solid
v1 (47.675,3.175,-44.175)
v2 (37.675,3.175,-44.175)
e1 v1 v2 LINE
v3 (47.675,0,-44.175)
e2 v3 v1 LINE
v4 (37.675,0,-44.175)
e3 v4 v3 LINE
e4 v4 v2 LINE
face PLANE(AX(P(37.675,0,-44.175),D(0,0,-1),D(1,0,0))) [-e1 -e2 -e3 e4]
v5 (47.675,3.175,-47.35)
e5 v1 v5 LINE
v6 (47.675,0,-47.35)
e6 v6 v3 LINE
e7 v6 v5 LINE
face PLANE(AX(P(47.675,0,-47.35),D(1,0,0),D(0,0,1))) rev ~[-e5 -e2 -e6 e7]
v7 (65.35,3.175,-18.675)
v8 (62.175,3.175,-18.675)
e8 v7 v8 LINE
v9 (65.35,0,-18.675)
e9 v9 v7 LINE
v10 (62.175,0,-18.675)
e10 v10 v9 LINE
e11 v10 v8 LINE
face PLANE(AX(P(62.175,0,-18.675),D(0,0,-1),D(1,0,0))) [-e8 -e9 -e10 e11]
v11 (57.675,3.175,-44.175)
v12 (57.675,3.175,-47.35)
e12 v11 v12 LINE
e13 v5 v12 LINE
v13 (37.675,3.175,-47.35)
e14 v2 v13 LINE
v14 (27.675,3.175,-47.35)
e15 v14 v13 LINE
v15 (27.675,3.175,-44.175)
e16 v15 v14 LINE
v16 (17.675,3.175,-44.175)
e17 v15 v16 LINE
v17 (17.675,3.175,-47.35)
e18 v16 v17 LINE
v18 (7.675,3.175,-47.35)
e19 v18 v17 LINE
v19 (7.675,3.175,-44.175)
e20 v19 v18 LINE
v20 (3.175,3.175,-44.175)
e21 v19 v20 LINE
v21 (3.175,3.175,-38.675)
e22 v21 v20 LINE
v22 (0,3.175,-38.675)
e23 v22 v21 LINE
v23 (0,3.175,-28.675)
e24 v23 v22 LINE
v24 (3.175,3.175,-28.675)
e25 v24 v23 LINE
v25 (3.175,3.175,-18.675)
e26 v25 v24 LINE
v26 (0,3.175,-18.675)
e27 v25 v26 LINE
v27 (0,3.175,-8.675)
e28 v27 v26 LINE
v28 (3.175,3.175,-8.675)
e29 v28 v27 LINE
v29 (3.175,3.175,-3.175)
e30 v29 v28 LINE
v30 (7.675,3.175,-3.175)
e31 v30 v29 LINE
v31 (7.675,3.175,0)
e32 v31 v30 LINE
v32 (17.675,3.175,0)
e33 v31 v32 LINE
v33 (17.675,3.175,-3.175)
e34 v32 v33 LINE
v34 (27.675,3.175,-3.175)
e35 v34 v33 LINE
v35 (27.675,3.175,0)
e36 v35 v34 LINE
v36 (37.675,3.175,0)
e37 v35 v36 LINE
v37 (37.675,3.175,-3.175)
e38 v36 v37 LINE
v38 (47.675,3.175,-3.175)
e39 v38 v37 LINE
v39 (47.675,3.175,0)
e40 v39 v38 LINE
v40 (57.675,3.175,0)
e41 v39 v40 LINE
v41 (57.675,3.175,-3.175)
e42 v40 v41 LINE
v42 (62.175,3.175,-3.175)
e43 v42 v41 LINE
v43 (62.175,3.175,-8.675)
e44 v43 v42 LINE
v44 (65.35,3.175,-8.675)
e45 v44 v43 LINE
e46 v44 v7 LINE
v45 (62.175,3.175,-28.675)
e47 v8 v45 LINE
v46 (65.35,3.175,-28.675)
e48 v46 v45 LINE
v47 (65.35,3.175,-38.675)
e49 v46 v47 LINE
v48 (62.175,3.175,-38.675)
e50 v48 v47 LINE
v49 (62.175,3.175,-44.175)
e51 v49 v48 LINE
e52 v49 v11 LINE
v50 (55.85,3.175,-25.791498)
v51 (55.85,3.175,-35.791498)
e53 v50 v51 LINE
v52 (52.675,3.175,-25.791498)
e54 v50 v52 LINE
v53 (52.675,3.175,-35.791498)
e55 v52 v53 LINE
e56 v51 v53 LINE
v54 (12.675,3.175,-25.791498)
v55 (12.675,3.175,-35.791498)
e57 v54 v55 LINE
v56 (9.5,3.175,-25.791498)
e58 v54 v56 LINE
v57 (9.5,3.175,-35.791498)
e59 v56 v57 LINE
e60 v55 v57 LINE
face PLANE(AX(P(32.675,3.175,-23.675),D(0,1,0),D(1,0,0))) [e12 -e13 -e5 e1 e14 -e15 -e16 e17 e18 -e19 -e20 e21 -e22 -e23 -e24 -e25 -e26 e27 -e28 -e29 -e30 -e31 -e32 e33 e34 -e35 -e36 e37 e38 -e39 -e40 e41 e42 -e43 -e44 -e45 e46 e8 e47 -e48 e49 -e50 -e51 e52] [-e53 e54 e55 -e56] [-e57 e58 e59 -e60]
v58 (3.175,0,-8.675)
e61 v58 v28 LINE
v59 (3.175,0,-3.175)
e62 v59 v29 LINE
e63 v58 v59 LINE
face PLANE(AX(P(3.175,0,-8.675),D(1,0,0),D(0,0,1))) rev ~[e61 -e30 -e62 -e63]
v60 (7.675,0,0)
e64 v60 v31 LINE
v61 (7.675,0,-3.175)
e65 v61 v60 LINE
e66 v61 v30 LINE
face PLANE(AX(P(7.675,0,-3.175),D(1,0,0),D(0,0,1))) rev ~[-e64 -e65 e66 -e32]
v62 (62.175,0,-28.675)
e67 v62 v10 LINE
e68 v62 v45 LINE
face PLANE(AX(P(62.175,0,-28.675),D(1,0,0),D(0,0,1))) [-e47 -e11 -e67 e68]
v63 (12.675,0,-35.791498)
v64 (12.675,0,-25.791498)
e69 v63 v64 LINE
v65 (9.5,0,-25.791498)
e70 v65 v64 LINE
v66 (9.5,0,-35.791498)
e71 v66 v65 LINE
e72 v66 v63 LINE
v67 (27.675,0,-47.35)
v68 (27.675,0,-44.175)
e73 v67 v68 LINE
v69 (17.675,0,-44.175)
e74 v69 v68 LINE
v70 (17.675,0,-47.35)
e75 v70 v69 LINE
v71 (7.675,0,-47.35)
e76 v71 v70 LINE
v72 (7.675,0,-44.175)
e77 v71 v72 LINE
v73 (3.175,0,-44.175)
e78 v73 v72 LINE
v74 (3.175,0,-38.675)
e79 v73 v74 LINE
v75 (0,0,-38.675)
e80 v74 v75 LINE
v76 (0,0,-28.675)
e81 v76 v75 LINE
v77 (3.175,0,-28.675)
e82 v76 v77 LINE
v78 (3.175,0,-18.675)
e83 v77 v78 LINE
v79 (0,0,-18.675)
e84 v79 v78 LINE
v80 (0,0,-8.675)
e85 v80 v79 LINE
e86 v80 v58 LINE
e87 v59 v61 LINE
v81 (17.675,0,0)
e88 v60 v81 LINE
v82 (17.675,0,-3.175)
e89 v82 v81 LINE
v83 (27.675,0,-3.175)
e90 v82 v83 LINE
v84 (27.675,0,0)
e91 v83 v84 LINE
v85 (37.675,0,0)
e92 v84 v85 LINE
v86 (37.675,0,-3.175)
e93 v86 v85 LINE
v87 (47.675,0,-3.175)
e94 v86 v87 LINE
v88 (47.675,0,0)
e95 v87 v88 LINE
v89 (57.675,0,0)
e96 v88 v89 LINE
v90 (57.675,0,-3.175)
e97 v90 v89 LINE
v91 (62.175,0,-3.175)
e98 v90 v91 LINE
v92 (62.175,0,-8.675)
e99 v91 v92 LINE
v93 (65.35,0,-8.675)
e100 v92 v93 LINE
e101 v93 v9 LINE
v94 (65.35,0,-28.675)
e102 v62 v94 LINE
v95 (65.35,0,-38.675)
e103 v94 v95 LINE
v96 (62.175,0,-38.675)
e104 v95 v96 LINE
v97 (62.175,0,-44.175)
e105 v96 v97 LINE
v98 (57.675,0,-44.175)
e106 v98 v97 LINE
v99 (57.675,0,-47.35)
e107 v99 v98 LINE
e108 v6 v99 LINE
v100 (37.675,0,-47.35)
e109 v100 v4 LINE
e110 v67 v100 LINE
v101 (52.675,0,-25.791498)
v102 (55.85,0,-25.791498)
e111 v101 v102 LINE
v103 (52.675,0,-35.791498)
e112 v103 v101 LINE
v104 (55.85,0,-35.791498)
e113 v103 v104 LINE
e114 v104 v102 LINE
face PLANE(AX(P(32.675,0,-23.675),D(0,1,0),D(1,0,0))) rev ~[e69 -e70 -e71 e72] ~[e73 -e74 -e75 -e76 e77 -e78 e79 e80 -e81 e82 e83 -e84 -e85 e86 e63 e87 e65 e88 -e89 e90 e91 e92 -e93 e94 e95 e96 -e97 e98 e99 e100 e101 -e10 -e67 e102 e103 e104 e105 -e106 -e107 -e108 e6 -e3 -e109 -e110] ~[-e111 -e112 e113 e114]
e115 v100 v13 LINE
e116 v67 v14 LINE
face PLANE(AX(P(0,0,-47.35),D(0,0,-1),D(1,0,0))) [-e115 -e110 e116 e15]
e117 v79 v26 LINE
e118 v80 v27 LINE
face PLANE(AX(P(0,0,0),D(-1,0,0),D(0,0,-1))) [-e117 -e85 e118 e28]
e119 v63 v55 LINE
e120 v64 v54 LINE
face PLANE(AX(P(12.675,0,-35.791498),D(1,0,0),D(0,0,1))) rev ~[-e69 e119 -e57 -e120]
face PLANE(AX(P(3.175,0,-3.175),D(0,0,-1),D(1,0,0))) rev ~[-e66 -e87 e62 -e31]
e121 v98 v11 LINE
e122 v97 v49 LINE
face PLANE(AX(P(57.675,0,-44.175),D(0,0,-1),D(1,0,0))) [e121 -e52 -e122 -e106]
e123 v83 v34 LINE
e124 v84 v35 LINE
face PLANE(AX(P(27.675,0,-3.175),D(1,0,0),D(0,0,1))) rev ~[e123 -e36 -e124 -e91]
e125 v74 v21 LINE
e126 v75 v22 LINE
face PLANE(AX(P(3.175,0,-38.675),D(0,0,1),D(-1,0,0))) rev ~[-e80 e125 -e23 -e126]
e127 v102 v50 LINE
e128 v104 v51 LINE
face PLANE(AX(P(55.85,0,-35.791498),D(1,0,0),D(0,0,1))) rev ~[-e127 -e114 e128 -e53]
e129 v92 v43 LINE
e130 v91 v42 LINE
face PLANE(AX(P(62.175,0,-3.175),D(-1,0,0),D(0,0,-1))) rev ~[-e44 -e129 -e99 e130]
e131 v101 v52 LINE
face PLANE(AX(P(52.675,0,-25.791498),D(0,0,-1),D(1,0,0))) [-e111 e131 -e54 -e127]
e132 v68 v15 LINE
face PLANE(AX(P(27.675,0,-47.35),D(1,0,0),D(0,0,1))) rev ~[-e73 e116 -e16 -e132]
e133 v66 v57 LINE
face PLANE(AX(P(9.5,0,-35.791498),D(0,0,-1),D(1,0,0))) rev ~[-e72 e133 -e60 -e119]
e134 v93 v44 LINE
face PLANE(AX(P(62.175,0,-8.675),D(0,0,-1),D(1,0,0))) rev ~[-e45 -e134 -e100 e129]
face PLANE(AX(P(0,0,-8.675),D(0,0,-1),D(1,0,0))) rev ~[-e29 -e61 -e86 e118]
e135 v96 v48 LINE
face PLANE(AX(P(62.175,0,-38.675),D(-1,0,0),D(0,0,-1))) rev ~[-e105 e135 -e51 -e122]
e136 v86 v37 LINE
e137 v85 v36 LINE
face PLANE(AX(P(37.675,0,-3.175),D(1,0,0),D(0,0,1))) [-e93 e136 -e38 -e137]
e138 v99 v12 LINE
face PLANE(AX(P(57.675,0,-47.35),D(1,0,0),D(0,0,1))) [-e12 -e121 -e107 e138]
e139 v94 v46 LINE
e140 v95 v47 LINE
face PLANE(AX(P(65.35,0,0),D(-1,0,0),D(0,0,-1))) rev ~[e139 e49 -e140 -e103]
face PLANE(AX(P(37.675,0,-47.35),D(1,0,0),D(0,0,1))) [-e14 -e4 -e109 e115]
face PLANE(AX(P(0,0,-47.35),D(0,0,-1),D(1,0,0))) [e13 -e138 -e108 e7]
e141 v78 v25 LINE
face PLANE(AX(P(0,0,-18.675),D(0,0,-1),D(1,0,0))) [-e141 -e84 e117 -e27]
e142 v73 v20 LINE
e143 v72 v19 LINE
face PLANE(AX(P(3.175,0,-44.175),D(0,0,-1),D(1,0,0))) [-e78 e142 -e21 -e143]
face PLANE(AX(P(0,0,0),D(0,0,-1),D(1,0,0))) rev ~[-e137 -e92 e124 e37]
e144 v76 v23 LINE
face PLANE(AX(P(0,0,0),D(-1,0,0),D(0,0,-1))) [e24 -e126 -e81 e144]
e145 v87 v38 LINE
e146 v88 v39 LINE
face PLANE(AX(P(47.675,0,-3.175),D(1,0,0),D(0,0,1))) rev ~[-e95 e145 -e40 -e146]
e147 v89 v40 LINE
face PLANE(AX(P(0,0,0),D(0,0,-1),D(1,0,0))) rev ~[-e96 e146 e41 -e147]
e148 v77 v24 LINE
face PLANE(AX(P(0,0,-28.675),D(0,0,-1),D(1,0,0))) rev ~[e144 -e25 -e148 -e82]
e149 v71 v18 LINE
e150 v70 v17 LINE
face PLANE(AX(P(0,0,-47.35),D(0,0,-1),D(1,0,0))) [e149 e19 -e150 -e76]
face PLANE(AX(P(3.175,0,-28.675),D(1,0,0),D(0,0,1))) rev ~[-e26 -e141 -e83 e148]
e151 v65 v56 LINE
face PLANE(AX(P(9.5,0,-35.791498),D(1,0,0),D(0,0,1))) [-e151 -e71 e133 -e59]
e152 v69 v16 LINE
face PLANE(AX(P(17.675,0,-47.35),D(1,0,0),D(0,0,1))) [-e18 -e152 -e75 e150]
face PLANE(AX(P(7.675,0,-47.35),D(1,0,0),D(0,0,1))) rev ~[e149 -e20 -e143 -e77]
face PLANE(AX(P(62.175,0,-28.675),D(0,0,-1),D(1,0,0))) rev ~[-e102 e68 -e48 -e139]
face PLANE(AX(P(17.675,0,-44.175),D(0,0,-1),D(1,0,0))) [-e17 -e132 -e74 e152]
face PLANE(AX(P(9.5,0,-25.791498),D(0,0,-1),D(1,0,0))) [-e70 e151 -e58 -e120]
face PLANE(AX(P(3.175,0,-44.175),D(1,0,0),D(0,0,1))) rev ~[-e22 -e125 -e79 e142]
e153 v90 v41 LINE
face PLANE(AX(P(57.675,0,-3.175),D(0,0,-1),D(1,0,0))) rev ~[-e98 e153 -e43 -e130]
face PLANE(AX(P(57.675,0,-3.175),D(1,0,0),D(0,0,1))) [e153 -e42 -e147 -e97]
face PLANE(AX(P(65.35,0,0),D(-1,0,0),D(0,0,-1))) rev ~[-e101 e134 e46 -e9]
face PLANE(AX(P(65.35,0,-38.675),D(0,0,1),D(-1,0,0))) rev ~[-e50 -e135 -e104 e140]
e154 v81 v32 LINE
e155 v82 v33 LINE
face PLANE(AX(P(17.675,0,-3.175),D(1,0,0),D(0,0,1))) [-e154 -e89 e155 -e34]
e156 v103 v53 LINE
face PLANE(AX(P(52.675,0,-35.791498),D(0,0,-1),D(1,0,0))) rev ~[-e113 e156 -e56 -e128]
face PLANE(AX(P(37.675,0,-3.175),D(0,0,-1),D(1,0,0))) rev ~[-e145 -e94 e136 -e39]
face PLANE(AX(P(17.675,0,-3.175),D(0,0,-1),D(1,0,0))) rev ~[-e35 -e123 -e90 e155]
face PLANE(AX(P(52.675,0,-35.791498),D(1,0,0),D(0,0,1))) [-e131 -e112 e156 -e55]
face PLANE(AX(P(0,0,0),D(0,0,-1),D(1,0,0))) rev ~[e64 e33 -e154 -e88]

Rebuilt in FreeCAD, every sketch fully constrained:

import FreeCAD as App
import Part
import Sketcher

V = App.Vector


def add_polygon(sketch, points):
    """Adds a closed chain of lines whose ends are joined by coincident constraints."""
    first, n = sketch.GeometryCount, len(points)
    for a, b in zip(points, points[1:] + points[:1]):
        sketch.addGeometry(Part.LineSegment(App.Vector(*a, 0), App.Vector(*b, 0)), False)
    for i in range(n):
        sketch.addConstraint(Sketcher.Constraint("Coincident", first + i, 2, first + (i + 1) % n, 1))

doc = App.newDocument("Part")
body = doc.addObject("PartDesign::Body", "Body")

# Sketch on XZ plane
sketch1 = body.newObject("Sketcher::SketchObject", "Sketch")
sketch1.AttachmentSupport = (doc.getObject("XZ_Plane"), [""])
sketch1.MapMode = "FlatFace"
add_polygon(sketch1, [(0, -47), (0, 0), (65, 0), (65, -47)])  # lines 0-3
sketch1.addConstraint([
    Sketcher.Constraint("Vertical", 0),
    Sketcher.Constraint("Horizontal", 1),
    Sketcher.Constraint("Vertical", 2),
    Sketcher.Constraint("Horizontal", 3),
    Sketcher.Constraint("Coincident", 0, 2, -1, 1),
    Sketcher.Constraint("DistanceX", 1, 1, 1, 2, 65.35),
    Sketcher.Constraint("DistanceY", 0, 1, 0, 2, 47.35),
])
pad1 = body.newObject("PartDesign::Pad", "Pad")
pad1.Profile = sketch1
pad1.Length = 3.175
pad1.Reversed = True

# Sketch on XZ plane
sketch2 = body.newObject("Sketcher::SketchObject", "Sketch001")
sketch2.AttachmentSupport = (doc.getObject("XZ_Plane"), [""])
sketch2.MapMode = "FlatFace"
add_polygon(sketch2, [(57.7, -44.2), (57.7, -47.4), (65.3, -47.4), (65.3, -38.7), (62.2, -38.7), (62.2, -44.2)])  # lines 0-5
add_polygon(sketch2, [(62.2, -18.7), (62.2, -28.7), (65.3, -28.7), (65.3, -18.7)])  # lines 6-9
add_polygon(sketch2, [(62.2, -8.7), (65.3, -8.7), (65.3, 0), (57.7, 0), (57.7, -3.2), (62.2, -3.2)])  # lines 10-15
add_polygon(sketch2, [(37.7, 0), (37.7, -3.2), (47.7, -3.2), (47.7, 0)])  # lines 16-19
add_polygon(sketch2, [(37.7, -44.2), (37.7, -47.4), (47.7, -47.4), (47.7, -44.2)])  # lines 20-23
add_polygon(sketch2, [(17.7, -44.2), (17.7, -47.4), (27.7, -47.4), (27.7, -44.2)])  # lines 24-27
add_polygon(sketch2, [(7.7, -47.4), (7.7, -44.2), (3.2, -44.2), (3.2, -38.7), (0, -38.7), (0, -47.4)])  # lines 28-33
add_polygon(sketch2, [(0, -18.7), (0, -28.7), (3.2, -28.7), (3.2, -18.7)])  # lines 34-37
add_polygon(sketch2, [(0, 0), (0, -8.7), (3.2, -8.7), (3.2, -3.2), (7.7, -3.2), (7.7, 0)])  # lines 38-43
add_polygon(sketch2, [(17.7, 0), (17.7, -3.2), (27.7, -3.2), (27.7, 0)])  # lines 44-47
sketch2.addConstraint([
    Sketcher.Constraint("Vertical", 0),
    Sketcher.Constraint("Horizontal", 1),
    Sketcher.Constraint("Vertical", 2),
    Sketcher.Constraint("Horizontal", 3),
    Sketcher.Constraint("Vertical", 4),
    Sketcher.Constraint("Horizontal", 5),
    Sketcher.Constraint("Vertical", 6),
    Sketcher.Constraint("Horizontal", 7),
    Sketcher.Constraint("Vertical", 8),
    Sketcher.Constraint("Horizontal", 9),
    Sketcher.Constraint("Horizontal", 10),
    Sketcher.Constraint("Vertical", 11),
    Sketcher.Constraint("Horizontal", 12),
    Sketcher.Constraint("Vertical", 13),
    Sketcher.Constraint("Horizontal", 14),
    Sketcher.Constraint("Vertical", 15),
    Sketcher.Constraint("Vertical", 16),
    Sketcher.Constraint("Horizontal", 17),
    Sketcher.Constraint("Vertical", 18),
    Sketcher.Constraint("Horizontal", 19),
    Sketcher.Constraint("Vertical", 20),
    Sketcher.Constraint("Horizontal", 21),
    Sketcher.Constraint("Vertical", 22),
    Sketcher.Constraint("Horizontal", 23),
    Sketcher.Constraint("Vertical", 24),
    Sketcher.Constraint("Horizontal", 25),
    Sketcher.Constraint("Vertical", 26),
    Sketcher.Constraint("Horizontal", 27),
    Sketcher.Constraint("Vertical", 28),
    Sketcher.Constraint("Horizontal", 29),
    Sketcher.Constraint("Vertical", 30),
    Sketcher.Constraint("Horizontal", 31),
    Sketcher.Constraint("Vertical", 32),
    Sketcher.Constraint("Horizontal", 33),
    Sketcher.Constraint("Vertical", 34),
    Sketcher.Constraint("Horizontal", 35),
    Sketcher.Constraint("Vertical", 36),
    Sketcher.Constraint("Horizontal", 37),
    Sketcher.Constraint("Vertical", 38),
    Sketcher.Constraint("Horizontal", 39),
    Sketcher.Constraint("Vertical", 40),
    Sketcher.Constraint("Horizontal", 41),
    Sketcher.Constraint("Vertical", 42),
    Sketcher.Constraint("Horizontal", 43),
    Sketcher.Constraint("Vertical", 44),
    Sketcher.Constraint("Horizontal", 45),
    Sketcher.Constraint("Vertical", 46),
    Sketcher.Constraint("Horizontal", 47),
    Sketcher.Constraint("Coincident", 43, 2, -1, 1),
    Sketcher.Constraint("PointOnObject", 11, 2, -1),
    Sketcher.Constraint("PointOnObject", 18, 2, -1),
    Sketcher.Constraint("PointOnObject", 31, 2, -2),
    Sketcher.Constraint("PointOnObject", 34, 2, -2),
    Sketcher.Constraint("PointOnObject", 46, 2, -1),
    Sketcher.Constraint("Horizontal", 14, 2, 16, 2),
    Sketcher.Constraint("Horizontal", 1, 2, 20, 2),
    Sketcher.Constraint("Horizontal", 5, 2, 22, 2),
    Sketcher.Constraint("Horizontal", 21, 2, 24, 2),
    Sketcher.Constraint("Horizontal", 23, 2, 26, 2),
    Sketcher.Constraint("Horizontal", 27, 2, 28, 2),
    Sketcher.Constraint("Horizontal", 3, 2, 30, 2),
    Sketcher.Constraint("Horizontal", 25, 2, 32, 2),
    Sketcher.Constraint("Horizontal", 7, 2, 34, 2),
    Sketcher.Constraint("Horizontal", 9, 2, 36, 2),
    Sketcher.Constraint("Horizontal", 15, 2, 38, 2),
    Sketcher.Constraint("Horizontal", 17, 2, 40, 2),
    Sketcher.Constraint("Horizontal", 41, 2, 44, 2),
    Sketcher.Constraint("Vertical", 4, 2, 6, 2),
    Sketcher.Constraint("Vertical", 2, 2, 7, 2),
    Sketcher.Constraint("Vertical", 8, 2, 10, 2),
    Sketcher.Constraint("Vertical", 5, 2, 12, 2),
    Sketcher.Constraint("Vertical", 9, 2, 14, 2),
    Sketcher.Constraint("Vertical", 19, 2, 20, 2),
    Sketcher.Constraint("Vertical", 18, 2, 21, 2),
    Sketcher.Constraint("Vertical", 30, 2, 35, 2),
    Sketcher.Constraint("Vertical", 36, 2, 39, 2),
    Sketcher.Constraint("Vertical", 33, 2, 41, 2),
    Sketcher.Constraint("Vertical", 27, 2, 44, 2),
    Sketcher.Constraint("Vertical", 26, 2, 45, 2),
    Sketcher.Constraint("Equal", 23, 25),
    Sketcher.Constraint("Equal", 14, 29),
    Sketcher.Constraint("Equal", 10, 31),
    Sketcher.Constraint("Equal", 39, 0),
    Sketcher.Constraint("Equal", 47, 6),
    Sketcher.Constraint("Equal", 2, 11),
    Sketcher.Constraint("Equal", 0, 13),
    Sketcher.Constraint("DistanceX", 17, 1, 17, 2, 10.0),
    Sketcher.Constraint("DistanceX", 5, 2, 5, 1, 4.5),
    Sketcher.Constraint("DistanceY", 4, 2, 4, 1, 5.5),
    Sketcher.Constraint("DistanceY", 3, 2, 6, 2, 10.0),
    Sketcher.Constraint("DistanceY", 8, 2, 10, 2, 10.0),
    Sketcher.Constraint("DistanceX", 16, 2, 13, 2, 20.0),
    Sketcher.Constraint("DistanceX", 24, 2, 20, 2, 20.0),
    Sketcher.Constraint("DistanceX", 28, 2, 27, 2, 10.0),
    Sketcher.Constraint("DistanceX", 1, 1, 1, 2, 7.675),
])
pocket1 = body.newObject("PartDesign::Pocket", "Pocket")
pocket1.Profile = sketch2
pocket1.Type = "ThroughAll"

# Sketch on XZ plane
sketch3 = body.newObject("Sketcher::SketchObject", "Sketch002")
sketch3.AttachmentSupport = (doc.getObject("XZ_Plane"), [""])
sketch3.MapMode = "FlatFace"
add_polygon(sketch3, [(52.7, -25.8), (52.7, -35.8), (55.9, -35.8), (55.9, -25.8)])  # lines 0-3
add_polygon(sketch3, [(9.5, -25.8), (9.5, -35.8), (12.7, -35.8), (12.7, -25.8)])  # lines 4-7
sketch3.addConstraint([
    Sketcher.Constraint("Vertical", 0),
    Sketcher.Constraint("Horizontal", 1),
    Sketcher.Constraint("Vertical", 2),
    Sketcher.Constraint("Horizontal", 3),
    Sketcher.Constraint("Vertical", 4),
    Sketcher.Constraint("Horizontal", 5),
    Sketcher.Constraint("Vertical", 6),
    Sketcher.Constraint("Horizontal", 7),
    Sketcher.Constraint("Horizontal", 1, 2, 4, 2),
    Sketcher.Constraint("Horizontal", 3, 2, 6, 2),
    Sketcher.Constraint("Equal", 3, 5),
    Sketcher.Constraint("DistanceY", 0, 2, 0, 1, 10.0),
    Sketcher.Constraint("DistanceX", 5, 2, 0, 2, 40.0),
    Sketcher.Constraint("DistanceX", -1, 1, 4, 2, 9.5),
    Sketcher.Constraint("DistanceX", 1, 1, 1, 2, 3.175),
    Sketcher.Constraint("DistanceY", 0, 2, -1, 1, 35.791498),
])
pocket2 = body.newObject("PartDesign::Pocket", "Pocket001")
pocket2.Profile = sketch3
pocket2.Type = "ThroughAll"

doc.recompute()
